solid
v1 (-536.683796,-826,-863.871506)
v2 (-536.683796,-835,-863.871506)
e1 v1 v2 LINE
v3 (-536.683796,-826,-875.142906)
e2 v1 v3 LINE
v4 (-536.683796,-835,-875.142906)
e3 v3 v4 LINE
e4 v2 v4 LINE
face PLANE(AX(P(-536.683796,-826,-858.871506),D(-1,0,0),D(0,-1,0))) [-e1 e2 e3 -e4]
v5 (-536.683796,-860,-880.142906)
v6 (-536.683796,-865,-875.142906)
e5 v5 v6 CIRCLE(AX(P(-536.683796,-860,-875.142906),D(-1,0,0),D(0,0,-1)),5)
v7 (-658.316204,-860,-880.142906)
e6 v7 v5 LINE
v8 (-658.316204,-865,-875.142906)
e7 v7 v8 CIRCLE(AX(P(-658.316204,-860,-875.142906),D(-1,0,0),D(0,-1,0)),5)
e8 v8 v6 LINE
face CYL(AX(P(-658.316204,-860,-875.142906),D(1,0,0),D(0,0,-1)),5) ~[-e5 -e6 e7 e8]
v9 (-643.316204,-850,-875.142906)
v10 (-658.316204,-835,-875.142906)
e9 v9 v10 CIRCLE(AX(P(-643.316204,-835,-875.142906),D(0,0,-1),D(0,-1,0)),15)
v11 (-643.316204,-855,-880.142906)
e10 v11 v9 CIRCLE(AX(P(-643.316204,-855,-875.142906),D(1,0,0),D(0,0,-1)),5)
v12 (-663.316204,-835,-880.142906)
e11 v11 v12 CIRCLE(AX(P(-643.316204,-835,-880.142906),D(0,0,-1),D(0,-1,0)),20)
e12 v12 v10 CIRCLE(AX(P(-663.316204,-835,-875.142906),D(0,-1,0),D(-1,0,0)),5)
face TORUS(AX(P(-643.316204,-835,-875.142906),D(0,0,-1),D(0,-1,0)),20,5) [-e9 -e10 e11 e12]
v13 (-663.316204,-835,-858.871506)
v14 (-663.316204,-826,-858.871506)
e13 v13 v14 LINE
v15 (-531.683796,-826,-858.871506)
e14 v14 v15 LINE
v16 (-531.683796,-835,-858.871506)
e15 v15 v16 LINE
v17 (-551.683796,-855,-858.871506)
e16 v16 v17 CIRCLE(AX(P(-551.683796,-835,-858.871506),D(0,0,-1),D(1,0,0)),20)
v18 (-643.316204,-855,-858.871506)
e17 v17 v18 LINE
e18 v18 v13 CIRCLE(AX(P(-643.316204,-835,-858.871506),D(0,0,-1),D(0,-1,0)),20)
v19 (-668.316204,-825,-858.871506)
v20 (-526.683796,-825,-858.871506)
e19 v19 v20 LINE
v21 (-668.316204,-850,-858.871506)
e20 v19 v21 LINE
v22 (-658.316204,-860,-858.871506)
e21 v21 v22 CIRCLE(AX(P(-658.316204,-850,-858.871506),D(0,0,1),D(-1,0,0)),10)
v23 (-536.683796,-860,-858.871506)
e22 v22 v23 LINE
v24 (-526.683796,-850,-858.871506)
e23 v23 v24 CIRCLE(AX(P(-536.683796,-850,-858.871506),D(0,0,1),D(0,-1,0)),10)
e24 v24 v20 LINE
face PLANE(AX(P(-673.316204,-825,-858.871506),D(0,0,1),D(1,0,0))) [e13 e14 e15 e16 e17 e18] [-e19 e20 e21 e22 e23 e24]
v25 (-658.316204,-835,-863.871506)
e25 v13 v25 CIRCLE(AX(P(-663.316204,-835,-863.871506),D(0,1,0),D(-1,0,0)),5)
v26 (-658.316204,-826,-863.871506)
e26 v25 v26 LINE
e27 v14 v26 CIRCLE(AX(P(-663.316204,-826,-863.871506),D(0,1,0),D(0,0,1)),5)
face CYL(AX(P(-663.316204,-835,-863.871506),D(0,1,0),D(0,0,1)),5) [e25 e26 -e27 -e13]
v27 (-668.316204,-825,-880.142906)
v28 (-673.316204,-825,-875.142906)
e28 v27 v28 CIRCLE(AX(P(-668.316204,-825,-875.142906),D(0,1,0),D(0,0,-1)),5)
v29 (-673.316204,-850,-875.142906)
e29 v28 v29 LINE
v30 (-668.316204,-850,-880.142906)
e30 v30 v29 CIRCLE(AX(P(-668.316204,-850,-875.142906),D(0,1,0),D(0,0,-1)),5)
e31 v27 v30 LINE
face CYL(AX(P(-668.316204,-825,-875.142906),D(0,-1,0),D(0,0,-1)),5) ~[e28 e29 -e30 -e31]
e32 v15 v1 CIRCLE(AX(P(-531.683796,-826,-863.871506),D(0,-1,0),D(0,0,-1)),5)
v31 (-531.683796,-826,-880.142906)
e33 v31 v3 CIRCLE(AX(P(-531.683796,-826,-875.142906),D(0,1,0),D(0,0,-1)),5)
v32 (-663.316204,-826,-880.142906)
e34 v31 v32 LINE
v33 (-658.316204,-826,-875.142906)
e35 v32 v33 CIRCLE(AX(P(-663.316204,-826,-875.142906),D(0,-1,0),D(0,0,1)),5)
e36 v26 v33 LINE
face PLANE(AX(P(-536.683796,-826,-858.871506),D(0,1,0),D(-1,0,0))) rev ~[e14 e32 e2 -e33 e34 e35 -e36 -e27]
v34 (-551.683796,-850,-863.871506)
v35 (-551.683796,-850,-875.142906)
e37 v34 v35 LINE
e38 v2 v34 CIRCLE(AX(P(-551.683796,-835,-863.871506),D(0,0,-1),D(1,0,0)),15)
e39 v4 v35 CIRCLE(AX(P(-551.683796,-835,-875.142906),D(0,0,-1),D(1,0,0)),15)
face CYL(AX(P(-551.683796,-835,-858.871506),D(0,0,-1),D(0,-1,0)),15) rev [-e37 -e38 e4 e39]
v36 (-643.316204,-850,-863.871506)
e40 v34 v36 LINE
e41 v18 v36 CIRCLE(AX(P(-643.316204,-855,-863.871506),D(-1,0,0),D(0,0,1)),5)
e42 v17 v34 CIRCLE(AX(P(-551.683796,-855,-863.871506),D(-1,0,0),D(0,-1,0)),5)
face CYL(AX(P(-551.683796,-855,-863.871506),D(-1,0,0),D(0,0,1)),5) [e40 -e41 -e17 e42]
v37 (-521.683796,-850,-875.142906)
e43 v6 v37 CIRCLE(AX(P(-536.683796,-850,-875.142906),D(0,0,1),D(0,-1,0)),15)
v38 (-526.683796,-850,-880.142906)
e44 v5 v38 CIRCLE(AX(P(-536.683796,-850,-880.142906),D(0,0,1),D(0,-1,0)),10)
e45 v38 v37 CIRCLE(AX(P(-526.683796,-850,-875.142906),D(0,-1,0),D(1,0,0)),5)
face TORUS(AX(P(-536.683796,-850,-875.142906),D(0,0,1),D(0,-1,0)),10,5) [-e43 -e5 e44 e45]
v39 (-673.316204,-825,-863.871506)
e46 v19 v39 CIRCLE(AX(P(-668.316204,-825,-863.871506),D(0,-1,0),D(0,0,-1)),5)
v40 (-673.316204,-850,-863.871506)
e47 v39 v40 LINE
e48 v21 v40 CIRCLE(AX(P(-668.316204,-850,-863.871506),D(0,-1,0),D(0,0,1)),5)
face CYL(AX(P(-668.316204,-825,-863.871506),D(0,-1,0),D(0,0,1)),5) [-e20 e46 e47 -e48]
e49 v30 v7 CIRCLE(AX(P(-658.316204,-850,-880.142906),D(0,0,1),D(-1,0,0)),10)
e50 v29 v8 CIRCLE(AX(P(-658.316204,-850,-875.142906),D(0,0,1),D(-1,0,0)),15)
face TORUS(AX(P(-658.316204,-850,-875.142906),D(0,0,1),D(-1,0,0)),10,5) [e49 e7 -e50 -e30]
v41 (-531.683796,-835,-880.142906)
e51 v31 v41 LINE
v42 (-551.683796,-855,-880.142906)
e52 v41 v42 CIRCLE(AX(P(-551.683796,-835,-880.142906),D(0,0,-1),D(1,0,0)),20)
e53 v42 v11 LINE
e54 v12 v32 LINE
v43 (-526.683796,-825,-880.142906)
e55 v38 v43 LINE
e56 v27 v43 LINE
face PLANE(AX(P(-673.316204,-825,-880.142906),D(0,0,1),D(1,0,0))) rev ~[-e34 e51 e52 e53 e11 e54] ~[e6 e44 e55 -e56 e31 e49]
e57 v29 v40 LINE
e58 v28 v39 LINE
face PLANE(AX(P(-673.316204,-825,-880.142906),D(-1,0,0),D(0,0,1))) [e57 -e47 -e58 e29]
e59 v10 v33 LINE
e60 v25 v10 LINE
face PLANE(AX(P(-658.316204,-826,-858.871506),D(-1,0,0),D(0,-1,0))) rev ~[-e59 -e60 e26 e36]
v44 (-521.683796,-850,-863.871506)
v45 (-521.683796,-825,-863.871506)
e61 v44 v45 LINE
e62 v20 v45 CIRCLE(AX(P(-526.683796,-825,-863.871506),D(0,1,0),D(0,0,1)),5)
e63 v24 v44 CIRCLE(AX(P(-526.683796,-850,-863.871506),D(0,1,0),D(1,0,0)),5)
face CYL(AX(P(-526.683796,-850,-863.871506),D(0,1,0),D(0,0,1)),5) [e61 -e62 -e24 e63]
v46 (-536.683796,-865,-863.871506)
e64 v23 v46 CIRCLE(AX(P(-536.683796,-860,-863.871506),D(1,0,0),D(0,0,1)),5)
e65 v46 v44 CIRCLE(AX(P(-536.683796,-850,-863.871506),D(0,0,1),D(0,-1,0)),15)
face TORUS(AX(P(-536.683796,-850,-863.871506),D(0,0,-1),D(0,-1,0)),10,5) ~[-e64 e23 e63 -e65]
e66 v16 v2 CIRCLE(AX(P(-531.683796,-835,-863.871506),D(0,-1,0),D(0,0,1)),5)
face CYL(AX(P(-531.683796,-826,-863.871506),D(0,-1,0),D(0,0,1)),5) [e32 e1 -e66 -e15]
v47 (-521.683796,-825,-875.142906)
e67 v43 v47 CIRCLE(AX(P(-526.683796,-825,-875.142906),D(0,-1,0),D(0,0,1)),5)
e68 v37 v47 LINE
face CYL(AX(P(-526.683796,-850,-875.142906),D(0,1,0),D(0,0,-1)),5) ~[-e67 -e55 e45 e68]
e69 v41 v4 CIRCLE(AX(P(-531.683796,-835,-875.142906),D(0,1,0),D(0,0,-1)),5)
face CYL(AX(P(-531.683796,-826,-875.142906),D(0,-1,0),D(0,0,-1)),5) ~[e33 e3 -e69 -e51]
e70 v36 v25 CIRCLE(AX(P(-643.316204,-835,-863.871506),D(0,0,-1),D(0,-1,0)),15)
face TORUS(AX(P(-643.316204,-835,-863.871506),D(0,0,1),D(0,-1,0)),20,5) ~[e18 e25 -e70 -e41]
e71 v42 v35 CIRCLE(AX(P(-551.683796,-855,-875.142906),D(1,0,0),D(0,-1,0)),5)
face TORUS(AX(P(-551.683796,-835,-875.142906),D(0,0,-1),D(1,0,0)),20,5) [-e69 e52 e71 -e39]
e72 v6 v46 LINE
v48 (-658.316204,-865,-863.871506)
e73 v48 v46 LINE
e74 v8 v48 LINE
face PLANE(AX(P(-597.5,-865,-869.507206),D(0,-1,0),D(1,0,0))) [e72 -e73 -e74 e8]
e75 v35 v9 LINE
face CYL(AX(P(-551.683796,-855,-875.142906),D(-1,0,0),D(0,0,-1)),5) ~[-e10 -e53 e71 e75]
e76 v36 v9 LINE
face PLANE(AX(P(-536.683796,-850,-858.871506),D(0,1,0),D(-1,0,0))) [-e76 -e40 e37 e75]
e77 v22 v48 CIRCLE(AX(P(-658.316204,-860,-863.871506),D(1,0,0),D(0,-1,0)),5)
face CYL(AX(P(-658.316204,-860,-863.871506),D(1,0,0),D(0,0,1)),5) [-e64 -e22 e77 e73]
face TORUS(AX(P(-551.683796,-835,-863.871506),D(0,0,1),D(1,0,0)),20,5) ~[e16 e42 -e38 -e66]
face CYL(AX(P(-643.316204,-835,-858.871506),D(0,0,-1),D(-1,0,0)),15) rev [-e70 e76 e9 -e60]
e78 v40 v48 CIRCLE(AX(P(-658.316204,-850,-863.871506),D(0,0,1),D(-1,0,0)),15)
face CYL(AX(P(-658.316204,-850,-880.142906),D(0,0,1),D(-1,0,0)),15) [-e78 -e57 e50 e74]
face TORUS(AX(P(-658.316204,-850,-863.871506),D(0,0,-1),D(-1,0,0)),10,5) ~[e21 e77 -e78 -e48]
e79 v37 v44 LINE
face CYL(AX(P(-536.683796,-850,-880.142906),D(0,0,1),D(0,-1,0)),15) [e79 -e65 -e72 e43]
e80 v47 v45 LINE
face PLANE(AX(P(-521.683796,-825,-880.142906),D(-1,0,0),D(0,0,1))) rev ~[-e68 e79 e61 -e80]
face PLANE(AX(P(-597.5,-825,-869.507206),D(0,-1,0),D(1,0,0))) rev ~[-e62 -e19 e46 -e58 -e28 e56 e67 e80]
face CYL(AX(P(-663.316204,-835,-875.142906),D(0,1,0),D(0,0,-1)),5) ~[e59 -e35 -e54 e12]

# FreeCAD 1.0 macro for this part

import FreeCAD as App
import Part
import Sketcher

V = App.Vector


def edges_at(feature, points):
    """Names of the edges that pass closest to the given points."""
    edges = feature.Shape.Edges
    near = lambda p: min(range(len(edges)), key=lambda i: edges[i].distToShape(Part.Vertex(*p))[0])
    return sorted({f"Edge{near(p) + 1}" for p in points})


def add_polygon(sketch, points):
    """Adds a closed chain of lines whose ends are joined by coincident constraints."""
    first, n = sketch.GeometryCount, len(points)
    for a, b in zip(points, points[1:] + points[:1]):
        sketch.addGeometry(Part.LineSegment(App.Vector(*a, 0), App.Vector(*b, 0)), False)
    for i in range(n):
        sketch.addConstraint(Sketcher.Constraint("Coincident", first + i, 2, first + (i + 1) % n, 1))

doc = App.newDocument("Part")
body = doc.addObject("PartDesign::Body", "Body")

# Sketch on XZ plane
sketch1 = body.newObject("Sketcher::SketchObject", "Sketch")
sketch1.AttachmentSupport = (doc.getObject("XZ_Plane"), [""])
sketch1.MapMode = "FlatFace"
sketch1.AttachmentOffset = App.Placement(V(0, 0, 825), App.Rotation())
add_polygon(sketch1, [(-673, -859), (-673, -880), (-522, -880), (-522, -859)])  # lines 0-3
sketch1.addConstraint(Sketcher.Constraint("Vertical", 0))
sketch1.addConstraint(Sketcher.Constraint("Horizontal", 1))
sketch1.addConstraint(Sketcher.Constraint("Vertical", 2))
sketch1.addConstraint(Sketcher.Constraint("Horizontal", 3))
sketch1.addConstraint(Sketcher.Constraint("DistanceY", 0, 2, 0, 1, 21.2714))
sketch1.addConstraint(Sketcher.Constraint("DistanceX", 1, 1, 1, 2, 151.632408))
sketch1.addConstraint(Sketcher.Constraint("DistanceX", 0, 2, -1, 1, 673.316204))
sketch1.addConstraint(Sketcher.Constraint("DistanceY", 0, 2, -1, 1, 880.142906))
pad1 = body.newObject("PartDesign::Pad", "Pad")
pad1.Profile = sketch1
pad1.Length = 40

# Sketch on XY plane
sketch2 = body.newObject("Sketcher::SketchObject", "Sketch001")
sketch2.AttachmentSupport = (doc.getObject("XY_Plane"), [""])
sketch2.MapMode = "FlatFace"
sketch2.AttachmentOffset = App.Placement(V(0, 0, -858.871506), App.Rotation())
add_polygon(sketch2, [(-537, -850), (-537, -826), (-658, -826), (-658, -850)])  # lines 0-3
sketch2.addConstraint(Sketcher.Constraint("Vertical", 0))
sketch2.addConstraint(Sketcher.Constraint("Horizontal", 1))
sketch2.addConstraint(Sketcher.Constraint("Vertical", 2))
sketch2.addConstraint(Sketcher.Constraint("Horizontal", 3))
sketch2.addConstraint(Sketcher.Constraint("DistanceY", 0, 1, 0, 2, 24.0))
sketch2.addConstraint(Sketcher.Constraint("DistanceY", 0, 2, -1, 1, 826.0))
sketch2.addConstraint(Sketcher.Constraint("DistanceX", 1, 2, 1, 1, 121.632408))
sketch2.addConstraint(Sketcher.Constraint("DistanceX", 0, 2, -1, 1, 536.683796))
pocket1 = body.newObject("PartDesign::Pocket", "Pocket")
pocket1.Profile = sketch2
pocket1.Type = "ThroughAll"
doc.recompute()

fillet = body.newObject("PartDesign::Fillet", "Fillet")
fillet.Base = (pocket1, edges_at(pocket1, [
    (-673.316, -865, -869.507),
    (-521.684, -865, -869.507),
    (-658.316, -850, -869.507),
    (-536.684, -850, -869.507),
]))
fillet.Radius = 15
doc.recompute()

fillet2 = body.newObject("PartDesign::Fillet", "Fillet001")
fillet2.Base = (fillet, edges_at(fillet, [
    (-597.5, -850, -858.872),
    (-597.5, -850, -880.143),
    (-597.5, -865, -858.872),
    (-597.5, -865, -880.143),
]))
fillet2.Radius = 5

doc.recompute()
